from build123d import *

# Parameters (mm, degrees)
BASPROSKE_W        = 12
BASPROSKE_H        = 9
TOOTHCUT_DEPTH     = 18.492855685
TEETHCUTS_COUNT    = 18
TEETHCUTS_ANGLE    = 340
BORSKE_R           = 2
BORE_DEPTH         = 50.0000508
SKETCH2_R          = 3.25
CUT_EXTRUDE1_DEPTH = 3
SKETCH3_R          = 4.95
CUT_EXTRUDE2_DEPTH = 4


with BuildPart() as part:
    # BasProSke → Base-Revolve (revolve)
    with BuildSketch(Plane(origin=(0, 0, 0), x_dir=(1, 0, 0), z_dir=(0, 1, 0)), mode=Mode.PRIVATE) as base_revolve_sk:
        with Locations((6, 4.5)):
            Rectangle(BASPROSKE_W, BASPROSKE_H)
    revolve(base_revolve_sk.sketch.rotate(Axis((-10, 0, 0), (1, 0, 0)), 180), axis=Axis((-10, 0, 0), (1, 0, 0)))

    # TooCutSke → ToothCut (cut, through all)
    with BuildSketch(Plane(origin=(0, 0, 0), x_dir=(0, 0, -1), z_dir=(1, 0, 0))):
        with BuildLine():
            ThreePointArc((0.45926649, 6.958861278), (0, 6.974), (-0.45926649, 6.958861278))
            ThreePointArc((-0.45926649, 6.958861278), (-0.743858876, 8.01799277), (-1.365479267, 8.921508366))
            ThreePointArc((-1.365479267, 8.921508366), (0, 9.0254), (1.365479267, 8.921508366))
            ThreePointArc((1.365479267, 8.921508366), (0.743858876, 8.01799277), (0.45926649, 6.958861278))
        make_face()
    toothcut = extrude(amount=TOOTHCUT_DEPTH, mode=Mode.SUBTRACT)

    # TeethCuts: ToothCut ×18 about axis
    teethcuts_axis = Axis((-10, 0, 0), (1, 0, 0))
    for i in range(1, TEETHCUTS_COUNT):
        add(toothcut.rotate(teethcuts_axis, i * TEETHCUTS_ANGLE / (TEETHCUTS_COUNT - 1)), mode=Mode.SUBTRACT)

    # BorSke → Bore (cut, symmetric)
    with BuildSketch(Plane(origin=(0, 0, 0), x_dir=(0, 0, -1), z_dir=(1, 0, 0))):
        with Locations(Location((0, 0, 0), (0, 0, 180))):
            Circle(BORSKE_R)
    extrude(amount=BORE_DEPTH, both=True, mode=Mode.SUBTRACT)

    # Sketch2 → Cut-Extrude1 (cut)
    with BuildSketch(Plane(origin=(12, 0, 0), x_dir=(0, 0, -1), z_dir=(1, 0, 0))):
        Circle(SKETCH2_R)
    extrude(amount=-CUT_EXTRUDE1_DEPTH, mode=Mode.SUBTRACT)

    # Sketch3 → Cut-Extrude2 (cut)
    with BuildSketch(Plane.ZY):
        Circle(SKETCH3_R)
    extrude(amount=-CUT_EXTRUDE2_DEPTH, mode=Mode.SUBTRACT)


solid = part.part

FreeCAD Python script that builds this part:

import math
import FreeCAD as App
import Part
import Sketcher

V = App.Vector

doc = App.newDocument("Part")
params = doc.addObject("Spreadsheet::Sheet", "Params")
for row, (alias, value) in enumerate([
    ("sketch1_width", "12 mm"),
    ("sketch1_height", "9 mm"),
    ("revolution_angle", "360 deg"),
    ("sketch2_radius", "3.24 mm"),
    ("sketch3_diameter", "4 mm"),
    ("pocket2_length", "100.000102 mm"),
    ("sketch4_diameter", "6.5 mm"),
    ("pocket3_length", "3 mm"),
    ("sketch5_diameter", "9.9 mm"),
    ("pocket4_length", "4 mm"),
], start=1):
    params.set(f"A{row}", alias)
    params.set(f"B{row}", "=" + value)
    params.setAlias(f"B{row}", alias)

body = doc.addObject("PartDesign::Body", "Body")

# Sketch on XZ plane
sketch1 = body.newObject("Sketcher::SketchObject", "Sketch")
sketch1.AttachmentSupport = (doc.getObject("XZ_Plane"), [""])
sketch1.MapMode = "FlatFace"
sketch1.addGeometry([
    Part.LineSegment(V(0, -9, 0), V(0, 0, 0)),
    Part.LineSegment(V(0, 0, 0), V(12, 0, 0)),
    Part.LineSegment(V(12, 0, 0), V(12, -9, 0)),
    Part.LineSegment(V(12, -9, 0), V(0, -9, 0)),
], False)
sketch1.addConstraint([
    Sketcher.Constraint("Coincident", 0, 2, 1, 1),
    Sketcher.Constraint("Coincident", 1, 2, 2, 1),
    Sketcher.Constraint("Coincident", 2, 2, 3, 1),
    Sketcher.Constraint("Coincident", 3, 2, 0, 1),
    Sketcher.Constraint("Vertical", 0),
    Sketcher.Constraint("Horizontal", 1),
    Sketcher.Constraint("Vertical", 2),
    Sketcher.Constraint("Horizontal", 3),
    Sketcher.Constraint("Coincident", 0, 2, -1, 1),
    Sketcher.Constraint("DistanceX", 1, 1, 1, 2, 12.0),
    Sketcher.Constraint("DistanceY", 0, 1, 0, 2, 9.0),
])
sketch1.setExpression("Constraints[9]", "Params.sketch1_width")
sketch1.setExpression("Constraints[10]", "Params.sketch1_height")
revolution = body.newObject("PartDesign::Revolution", "Revolution")
revolution.Profile = sketch1
revolution.ReferenceAxis = (sketch1, ["H_Axis"])
revolution.setExpression("Angle", "Params.revolution_angle")

# Sketch on YZ plane
sketch2 = body.newObject("Sketcher::SketchObject", "Sketch001")
sketch2.AttachmentSupport = (doc.getObject("YZ_Plane"), [""])
sketch2.MapMode = "FlatFace"
sketch2.addGeometry([
    Part.ArcOfCircle(Part.Circle(V(0, 0, 0), V(0, 0, 1), 7), math.radians(-3.78), math.radians(3.78)),
    Part.ArcOfCircle(Part.Circle(V(6.7, -3.7, 0), V(0, 0, 1), 3.2), math.radians(46), math.radians(85)),
    Part.ArcOfCircle(Part.Circle(V(0, 0, 0), V(0, 0, 1), 9), math.radians(-8.7), math.radians(8.7)),
    Part.ArcOfCircle(Part.Circle(V(6.7, 3.7, 0), V(0, 0, 1), 3.2), math.radians(-85), math.radians(-46)),
], False)
sketch2.addConstraint([
    Sketcher.Constraint("Coincident", 0, 1, 1, 2),
    Sketcher.Constraint("Coincident", 1, 1, 2, 1),
    Sketcher.Constraint("Coincident", 2, 2, 3, 2),
    Sketcher.Constraint("Coincident", 3, 1, 0, 2),
    Sketcher.Constraint("Coincident", 0, 3, -1, 1),
    Sketcher.Constraint("Coincident", 2, 3, -1, 1),
    Sketcher.Constraint("Equal", 1, 3),
    Sketcher.Constraint("Symmetric", 1, 3, 3, 3, -1),
    Sketcher.Constraint("Radius", 1, 3.24),
    Sketcher.Constraint("Radius", 0, 6.974),
    Sketcher.Constraint("Radius", 2, 9.0254),
    Sketcher.Constraint("DistanceY", 0, 1, 3, 3, 4.1447),
    Sketcher.Constraint("DistanceX", -1, 1, 1, 3, 6.65978),
])
sketch2.setExpression("Constraints[8]", "Params.sketch2_radius")
pocket1 = body.newObject("PartDesign::Pocket", "Pocket")
pocket1.Profile = sketch2
pocket1.Type = "ThroughAll"
pocket1.Reversed = True
doc.recompute()

polarpattern = body.newObject("PartDesign::PolarPattern", "PolarPattern")
polarpattern.Originals = [pocket1]
polarpattern.Axis = (doc.getObject("X_Axis"), [""])
polarpattern.Angle = 360
polarpattern.Occurrences = 18
body.Tip = polarpattern

# Sketch on YZ plane
sketch3 = body.newObject("Sketcher::SketchObject", "Sketch002")
sketch3.AttachmentSupport = (doc.getObject("YZ_Plane"), [""])
sketch3.MapMode = "FlatFace"
sketch3.addGeometry(Part.Circle(V(0, 0, 0), V(0, 0, 1), 2), False)
sketch3.addConstraint([
    Sketcher.Constraint("Coincident", 0, 3, -1, 1),
    Sketcher.Constraint("Diameter", 0, 4.0),
])
sketch3.setExpression("Constraints[1]", "Params.sketch3_diameter")
pocket2 = body.newObject("PartDesign::Pocket", "Pocket001")
pocket2.Profile = sketch3
pocket2.setExpression("Length", "Params.pocket2_length")
pocket2.Midplane = True

# Sketch on YZ plane
sketch4 = body.newObject("Sketcher::SketchObject", "Sketch003")
sketch4.AttachmentSupport = (doc.getObject("YZ_Plane"), [""])
sketch4.MapMode = "FlatFace"
sketch4.AttachmentOffset = App.Placement(V(0, 0, 12), App.Rotation())
sketch4.addGeometry(Part.Circle(V(0, 0, 0), V(0, 0, 1), 3.2), False)
sketch4.addConstraint([
    Sketcher.Constraint("Coincident", 0, 3, -1, 1),
    Sketcher.Constraint("Diameter", 0, 6.5),
])
sketch4.setExpression("Constraints[1]", "Params.sketch4_diameter")
pocket3 = body.newObject("PartDesign::Pocket", "Pocket002")
pocket3.Profile = sketch4
pocket3.setExpression("Length", "Params.pocket3_length")

# Sketch on YZ plane
sketch5 = body.newObject("Sketcher::SketchObject", "Sketch004")
sketch5.AttachmentSupport = (doc.getObject("YZ_Plane"), [""])
sketch5.MapMode = "FlatFace"
sketch5.addGeometry(Part.Circle(V(0, 0, 0), V(0, 0, 1), 5), False)
sketch5.addConstraint([
    Sketcher.Constraint("Coincident", 0, 3, -1, 1),
    Sketcher.Constraint("Diameter", 0, 9.9),
])
sketch5.setExpression("Constraints[1]", "Params.sketch5_diameter")
pocket4 = body.newObject("PartDesign::Pocket", "Pocket003")
pocket4.Profile = sketch5
pocket4.setExpression("Length", "Params.pocket4_length")
pocket4.Reversed = True

doc.recompute()
